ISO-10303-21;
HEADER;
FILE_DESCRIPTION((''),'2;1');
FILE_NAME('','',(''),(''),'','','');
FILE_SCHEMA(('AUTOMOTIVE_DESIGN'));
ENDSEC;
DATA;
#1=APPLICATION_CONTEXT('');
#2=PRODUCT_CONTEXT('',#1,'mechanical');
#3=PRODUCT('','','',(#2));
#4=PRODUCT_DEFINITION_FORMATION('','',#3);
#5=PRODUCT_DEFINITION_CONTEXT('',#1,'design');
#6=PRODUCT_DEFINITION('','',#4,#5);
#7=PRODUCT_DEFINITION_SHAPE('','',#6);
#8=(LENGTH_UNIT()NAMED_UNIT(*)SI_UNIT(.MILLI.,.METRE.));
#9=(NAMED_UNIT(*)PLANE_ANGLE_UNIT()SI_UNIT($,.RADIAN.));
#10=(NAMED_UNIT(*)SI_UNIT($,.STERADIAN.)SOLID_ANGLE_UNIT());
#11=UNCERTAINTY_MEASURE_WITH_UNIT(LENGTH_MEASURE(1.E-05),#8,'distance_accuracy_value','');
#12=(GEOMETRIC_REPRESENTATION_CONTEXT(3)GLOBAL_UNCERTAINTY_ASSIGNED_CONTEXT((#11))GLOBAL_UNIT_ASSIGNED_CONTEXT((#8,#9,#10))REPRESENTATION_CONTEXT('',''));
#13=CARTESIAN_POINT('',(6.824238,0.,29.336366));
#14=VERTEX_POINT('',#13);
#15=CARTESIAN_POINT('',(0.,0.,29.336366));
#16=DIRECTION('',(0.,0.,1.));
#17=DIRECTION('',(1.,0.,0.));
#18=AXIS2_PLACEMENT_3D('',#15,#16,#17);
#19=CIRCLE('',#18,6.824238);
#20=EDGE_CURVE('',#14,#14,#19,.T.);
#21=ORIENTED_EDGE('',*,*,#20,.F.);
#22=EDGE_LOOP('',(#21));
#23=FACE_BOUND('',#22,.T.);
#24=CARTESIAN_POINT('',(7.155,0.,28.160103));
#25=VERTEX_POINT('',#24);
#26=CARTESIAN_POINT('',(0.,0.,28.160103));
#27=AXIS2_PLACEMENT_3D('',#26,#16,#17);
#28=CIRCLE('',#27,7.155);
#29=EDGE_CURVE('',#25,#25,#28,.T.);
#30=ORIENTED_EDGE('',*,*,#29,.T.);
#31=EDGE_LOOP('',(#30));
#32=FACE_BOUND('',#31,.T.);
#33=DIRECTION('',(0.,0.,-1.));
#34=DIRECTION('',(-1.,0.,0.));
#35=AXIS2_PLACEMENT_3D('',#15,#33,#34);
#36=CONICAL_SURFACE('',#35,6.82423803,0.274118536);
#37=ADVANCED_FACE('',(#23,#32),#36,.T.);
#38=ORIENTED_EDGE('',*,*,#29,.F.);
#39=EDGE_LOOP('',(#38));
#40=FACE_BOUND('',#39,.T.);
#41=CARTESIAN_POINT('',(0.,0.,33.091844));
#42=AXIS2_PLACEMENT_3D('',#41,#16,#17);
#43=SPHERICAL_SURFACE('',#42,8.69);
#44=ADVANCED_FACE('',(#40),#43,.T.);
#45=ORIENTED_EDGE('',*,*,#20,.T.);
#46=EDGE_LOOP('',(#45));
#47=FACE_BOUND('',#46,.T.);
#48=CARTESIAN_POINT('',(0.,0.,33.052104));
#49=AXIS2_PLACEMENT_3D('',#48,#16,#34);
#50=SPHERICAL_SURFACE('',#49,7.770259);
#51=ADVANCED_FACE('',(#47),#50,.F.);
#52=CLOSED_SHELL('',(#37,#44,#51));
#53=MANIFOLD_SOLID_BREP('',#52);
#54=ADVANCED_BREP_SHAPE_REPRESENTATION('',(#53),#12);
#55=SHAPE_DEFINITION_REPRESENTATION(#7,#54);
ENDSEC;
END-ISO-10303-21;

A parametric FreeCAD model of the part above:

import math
import FreeCAD as App
import Part
import Sketcher

doc = App.newDocument("Part")
body = doc.addObject("PartDesign::Body", "Body")

# Sketch on XZ plane
sketch1 = body.newObject("Sketcher::SketchObject", "Sketch")
sketch1.AttachmentSupport = (doc.getObject("XZ_Plane"), [""])
sketch1.MapMode = "FlatFace"
sketch1.addGeometry([
    Part.LineSegment(App.Vector(6.8, 29.3, 0), App.Vector(7.2, 28.2, 0)),
    Part.ArcOfCircle(Part.Circle(App.Vector(0, 33.1, 0), App.Vector(0, 0, 1), 8.7), math.radians(-90), math.radians(-35)),
    Part.LineSegment(App.Vector(0, 24.4, 0), App.Vector(0, 25.3, 0)),
    Part.ArcOfCircle(Part.Circle(App.Vector(0, 33.1, 0), App.Vector(0, 0, 1), 7.8), math.radians(-90), math.radians(-29)),
], False)
sketch1.addConstraint([
    Sketcher.Constraint("Coincident", 0, 2, 1, 2),
    Sketcher.Constraint("Coincident", 1, 1, 2, 1),
    Sketcher.Constraint("Coincident", 2, 2, 3, 1),
    Sketcher.Constraint("Coincident", 3, 2, 0, 1),
    Sketcher.Constraint("Vertical", 2),
    Sketcher.Constraint("PointOnObject", 1, 3, -2),
    Sketcher.Constraint("PointOnObject", 3, 3, -2),
    Sketcher.Constraint("PointOnObject", 1, 1, -2),
    Sketcher.Constraint("Radius", 1, 8.69),
    Sketcher.Constraint("DistanceY", 2, 1, 2, 2, 0.88),
    Sketcher.Constraint("Radius", 3, 7.770259),
    Sketcher.Constraint("DistanceX", -1, 1, 0, 2, 7.155),
    Sketcher.Constraint("DistanceX", -1, 1, 3, 2, 6.824238),
    Sketcher.Constraint("DistanceY", -1, 1, 1, 3, 33.091844),
])
revolution = body.newObject("PartDesign::Revolution", "Revolution")
revolution.Profile = sketch1
revolution.ReferenceAxis = (sketch1, ["V_Axis"])
revolution.Angle = 360

doc.recompute()
